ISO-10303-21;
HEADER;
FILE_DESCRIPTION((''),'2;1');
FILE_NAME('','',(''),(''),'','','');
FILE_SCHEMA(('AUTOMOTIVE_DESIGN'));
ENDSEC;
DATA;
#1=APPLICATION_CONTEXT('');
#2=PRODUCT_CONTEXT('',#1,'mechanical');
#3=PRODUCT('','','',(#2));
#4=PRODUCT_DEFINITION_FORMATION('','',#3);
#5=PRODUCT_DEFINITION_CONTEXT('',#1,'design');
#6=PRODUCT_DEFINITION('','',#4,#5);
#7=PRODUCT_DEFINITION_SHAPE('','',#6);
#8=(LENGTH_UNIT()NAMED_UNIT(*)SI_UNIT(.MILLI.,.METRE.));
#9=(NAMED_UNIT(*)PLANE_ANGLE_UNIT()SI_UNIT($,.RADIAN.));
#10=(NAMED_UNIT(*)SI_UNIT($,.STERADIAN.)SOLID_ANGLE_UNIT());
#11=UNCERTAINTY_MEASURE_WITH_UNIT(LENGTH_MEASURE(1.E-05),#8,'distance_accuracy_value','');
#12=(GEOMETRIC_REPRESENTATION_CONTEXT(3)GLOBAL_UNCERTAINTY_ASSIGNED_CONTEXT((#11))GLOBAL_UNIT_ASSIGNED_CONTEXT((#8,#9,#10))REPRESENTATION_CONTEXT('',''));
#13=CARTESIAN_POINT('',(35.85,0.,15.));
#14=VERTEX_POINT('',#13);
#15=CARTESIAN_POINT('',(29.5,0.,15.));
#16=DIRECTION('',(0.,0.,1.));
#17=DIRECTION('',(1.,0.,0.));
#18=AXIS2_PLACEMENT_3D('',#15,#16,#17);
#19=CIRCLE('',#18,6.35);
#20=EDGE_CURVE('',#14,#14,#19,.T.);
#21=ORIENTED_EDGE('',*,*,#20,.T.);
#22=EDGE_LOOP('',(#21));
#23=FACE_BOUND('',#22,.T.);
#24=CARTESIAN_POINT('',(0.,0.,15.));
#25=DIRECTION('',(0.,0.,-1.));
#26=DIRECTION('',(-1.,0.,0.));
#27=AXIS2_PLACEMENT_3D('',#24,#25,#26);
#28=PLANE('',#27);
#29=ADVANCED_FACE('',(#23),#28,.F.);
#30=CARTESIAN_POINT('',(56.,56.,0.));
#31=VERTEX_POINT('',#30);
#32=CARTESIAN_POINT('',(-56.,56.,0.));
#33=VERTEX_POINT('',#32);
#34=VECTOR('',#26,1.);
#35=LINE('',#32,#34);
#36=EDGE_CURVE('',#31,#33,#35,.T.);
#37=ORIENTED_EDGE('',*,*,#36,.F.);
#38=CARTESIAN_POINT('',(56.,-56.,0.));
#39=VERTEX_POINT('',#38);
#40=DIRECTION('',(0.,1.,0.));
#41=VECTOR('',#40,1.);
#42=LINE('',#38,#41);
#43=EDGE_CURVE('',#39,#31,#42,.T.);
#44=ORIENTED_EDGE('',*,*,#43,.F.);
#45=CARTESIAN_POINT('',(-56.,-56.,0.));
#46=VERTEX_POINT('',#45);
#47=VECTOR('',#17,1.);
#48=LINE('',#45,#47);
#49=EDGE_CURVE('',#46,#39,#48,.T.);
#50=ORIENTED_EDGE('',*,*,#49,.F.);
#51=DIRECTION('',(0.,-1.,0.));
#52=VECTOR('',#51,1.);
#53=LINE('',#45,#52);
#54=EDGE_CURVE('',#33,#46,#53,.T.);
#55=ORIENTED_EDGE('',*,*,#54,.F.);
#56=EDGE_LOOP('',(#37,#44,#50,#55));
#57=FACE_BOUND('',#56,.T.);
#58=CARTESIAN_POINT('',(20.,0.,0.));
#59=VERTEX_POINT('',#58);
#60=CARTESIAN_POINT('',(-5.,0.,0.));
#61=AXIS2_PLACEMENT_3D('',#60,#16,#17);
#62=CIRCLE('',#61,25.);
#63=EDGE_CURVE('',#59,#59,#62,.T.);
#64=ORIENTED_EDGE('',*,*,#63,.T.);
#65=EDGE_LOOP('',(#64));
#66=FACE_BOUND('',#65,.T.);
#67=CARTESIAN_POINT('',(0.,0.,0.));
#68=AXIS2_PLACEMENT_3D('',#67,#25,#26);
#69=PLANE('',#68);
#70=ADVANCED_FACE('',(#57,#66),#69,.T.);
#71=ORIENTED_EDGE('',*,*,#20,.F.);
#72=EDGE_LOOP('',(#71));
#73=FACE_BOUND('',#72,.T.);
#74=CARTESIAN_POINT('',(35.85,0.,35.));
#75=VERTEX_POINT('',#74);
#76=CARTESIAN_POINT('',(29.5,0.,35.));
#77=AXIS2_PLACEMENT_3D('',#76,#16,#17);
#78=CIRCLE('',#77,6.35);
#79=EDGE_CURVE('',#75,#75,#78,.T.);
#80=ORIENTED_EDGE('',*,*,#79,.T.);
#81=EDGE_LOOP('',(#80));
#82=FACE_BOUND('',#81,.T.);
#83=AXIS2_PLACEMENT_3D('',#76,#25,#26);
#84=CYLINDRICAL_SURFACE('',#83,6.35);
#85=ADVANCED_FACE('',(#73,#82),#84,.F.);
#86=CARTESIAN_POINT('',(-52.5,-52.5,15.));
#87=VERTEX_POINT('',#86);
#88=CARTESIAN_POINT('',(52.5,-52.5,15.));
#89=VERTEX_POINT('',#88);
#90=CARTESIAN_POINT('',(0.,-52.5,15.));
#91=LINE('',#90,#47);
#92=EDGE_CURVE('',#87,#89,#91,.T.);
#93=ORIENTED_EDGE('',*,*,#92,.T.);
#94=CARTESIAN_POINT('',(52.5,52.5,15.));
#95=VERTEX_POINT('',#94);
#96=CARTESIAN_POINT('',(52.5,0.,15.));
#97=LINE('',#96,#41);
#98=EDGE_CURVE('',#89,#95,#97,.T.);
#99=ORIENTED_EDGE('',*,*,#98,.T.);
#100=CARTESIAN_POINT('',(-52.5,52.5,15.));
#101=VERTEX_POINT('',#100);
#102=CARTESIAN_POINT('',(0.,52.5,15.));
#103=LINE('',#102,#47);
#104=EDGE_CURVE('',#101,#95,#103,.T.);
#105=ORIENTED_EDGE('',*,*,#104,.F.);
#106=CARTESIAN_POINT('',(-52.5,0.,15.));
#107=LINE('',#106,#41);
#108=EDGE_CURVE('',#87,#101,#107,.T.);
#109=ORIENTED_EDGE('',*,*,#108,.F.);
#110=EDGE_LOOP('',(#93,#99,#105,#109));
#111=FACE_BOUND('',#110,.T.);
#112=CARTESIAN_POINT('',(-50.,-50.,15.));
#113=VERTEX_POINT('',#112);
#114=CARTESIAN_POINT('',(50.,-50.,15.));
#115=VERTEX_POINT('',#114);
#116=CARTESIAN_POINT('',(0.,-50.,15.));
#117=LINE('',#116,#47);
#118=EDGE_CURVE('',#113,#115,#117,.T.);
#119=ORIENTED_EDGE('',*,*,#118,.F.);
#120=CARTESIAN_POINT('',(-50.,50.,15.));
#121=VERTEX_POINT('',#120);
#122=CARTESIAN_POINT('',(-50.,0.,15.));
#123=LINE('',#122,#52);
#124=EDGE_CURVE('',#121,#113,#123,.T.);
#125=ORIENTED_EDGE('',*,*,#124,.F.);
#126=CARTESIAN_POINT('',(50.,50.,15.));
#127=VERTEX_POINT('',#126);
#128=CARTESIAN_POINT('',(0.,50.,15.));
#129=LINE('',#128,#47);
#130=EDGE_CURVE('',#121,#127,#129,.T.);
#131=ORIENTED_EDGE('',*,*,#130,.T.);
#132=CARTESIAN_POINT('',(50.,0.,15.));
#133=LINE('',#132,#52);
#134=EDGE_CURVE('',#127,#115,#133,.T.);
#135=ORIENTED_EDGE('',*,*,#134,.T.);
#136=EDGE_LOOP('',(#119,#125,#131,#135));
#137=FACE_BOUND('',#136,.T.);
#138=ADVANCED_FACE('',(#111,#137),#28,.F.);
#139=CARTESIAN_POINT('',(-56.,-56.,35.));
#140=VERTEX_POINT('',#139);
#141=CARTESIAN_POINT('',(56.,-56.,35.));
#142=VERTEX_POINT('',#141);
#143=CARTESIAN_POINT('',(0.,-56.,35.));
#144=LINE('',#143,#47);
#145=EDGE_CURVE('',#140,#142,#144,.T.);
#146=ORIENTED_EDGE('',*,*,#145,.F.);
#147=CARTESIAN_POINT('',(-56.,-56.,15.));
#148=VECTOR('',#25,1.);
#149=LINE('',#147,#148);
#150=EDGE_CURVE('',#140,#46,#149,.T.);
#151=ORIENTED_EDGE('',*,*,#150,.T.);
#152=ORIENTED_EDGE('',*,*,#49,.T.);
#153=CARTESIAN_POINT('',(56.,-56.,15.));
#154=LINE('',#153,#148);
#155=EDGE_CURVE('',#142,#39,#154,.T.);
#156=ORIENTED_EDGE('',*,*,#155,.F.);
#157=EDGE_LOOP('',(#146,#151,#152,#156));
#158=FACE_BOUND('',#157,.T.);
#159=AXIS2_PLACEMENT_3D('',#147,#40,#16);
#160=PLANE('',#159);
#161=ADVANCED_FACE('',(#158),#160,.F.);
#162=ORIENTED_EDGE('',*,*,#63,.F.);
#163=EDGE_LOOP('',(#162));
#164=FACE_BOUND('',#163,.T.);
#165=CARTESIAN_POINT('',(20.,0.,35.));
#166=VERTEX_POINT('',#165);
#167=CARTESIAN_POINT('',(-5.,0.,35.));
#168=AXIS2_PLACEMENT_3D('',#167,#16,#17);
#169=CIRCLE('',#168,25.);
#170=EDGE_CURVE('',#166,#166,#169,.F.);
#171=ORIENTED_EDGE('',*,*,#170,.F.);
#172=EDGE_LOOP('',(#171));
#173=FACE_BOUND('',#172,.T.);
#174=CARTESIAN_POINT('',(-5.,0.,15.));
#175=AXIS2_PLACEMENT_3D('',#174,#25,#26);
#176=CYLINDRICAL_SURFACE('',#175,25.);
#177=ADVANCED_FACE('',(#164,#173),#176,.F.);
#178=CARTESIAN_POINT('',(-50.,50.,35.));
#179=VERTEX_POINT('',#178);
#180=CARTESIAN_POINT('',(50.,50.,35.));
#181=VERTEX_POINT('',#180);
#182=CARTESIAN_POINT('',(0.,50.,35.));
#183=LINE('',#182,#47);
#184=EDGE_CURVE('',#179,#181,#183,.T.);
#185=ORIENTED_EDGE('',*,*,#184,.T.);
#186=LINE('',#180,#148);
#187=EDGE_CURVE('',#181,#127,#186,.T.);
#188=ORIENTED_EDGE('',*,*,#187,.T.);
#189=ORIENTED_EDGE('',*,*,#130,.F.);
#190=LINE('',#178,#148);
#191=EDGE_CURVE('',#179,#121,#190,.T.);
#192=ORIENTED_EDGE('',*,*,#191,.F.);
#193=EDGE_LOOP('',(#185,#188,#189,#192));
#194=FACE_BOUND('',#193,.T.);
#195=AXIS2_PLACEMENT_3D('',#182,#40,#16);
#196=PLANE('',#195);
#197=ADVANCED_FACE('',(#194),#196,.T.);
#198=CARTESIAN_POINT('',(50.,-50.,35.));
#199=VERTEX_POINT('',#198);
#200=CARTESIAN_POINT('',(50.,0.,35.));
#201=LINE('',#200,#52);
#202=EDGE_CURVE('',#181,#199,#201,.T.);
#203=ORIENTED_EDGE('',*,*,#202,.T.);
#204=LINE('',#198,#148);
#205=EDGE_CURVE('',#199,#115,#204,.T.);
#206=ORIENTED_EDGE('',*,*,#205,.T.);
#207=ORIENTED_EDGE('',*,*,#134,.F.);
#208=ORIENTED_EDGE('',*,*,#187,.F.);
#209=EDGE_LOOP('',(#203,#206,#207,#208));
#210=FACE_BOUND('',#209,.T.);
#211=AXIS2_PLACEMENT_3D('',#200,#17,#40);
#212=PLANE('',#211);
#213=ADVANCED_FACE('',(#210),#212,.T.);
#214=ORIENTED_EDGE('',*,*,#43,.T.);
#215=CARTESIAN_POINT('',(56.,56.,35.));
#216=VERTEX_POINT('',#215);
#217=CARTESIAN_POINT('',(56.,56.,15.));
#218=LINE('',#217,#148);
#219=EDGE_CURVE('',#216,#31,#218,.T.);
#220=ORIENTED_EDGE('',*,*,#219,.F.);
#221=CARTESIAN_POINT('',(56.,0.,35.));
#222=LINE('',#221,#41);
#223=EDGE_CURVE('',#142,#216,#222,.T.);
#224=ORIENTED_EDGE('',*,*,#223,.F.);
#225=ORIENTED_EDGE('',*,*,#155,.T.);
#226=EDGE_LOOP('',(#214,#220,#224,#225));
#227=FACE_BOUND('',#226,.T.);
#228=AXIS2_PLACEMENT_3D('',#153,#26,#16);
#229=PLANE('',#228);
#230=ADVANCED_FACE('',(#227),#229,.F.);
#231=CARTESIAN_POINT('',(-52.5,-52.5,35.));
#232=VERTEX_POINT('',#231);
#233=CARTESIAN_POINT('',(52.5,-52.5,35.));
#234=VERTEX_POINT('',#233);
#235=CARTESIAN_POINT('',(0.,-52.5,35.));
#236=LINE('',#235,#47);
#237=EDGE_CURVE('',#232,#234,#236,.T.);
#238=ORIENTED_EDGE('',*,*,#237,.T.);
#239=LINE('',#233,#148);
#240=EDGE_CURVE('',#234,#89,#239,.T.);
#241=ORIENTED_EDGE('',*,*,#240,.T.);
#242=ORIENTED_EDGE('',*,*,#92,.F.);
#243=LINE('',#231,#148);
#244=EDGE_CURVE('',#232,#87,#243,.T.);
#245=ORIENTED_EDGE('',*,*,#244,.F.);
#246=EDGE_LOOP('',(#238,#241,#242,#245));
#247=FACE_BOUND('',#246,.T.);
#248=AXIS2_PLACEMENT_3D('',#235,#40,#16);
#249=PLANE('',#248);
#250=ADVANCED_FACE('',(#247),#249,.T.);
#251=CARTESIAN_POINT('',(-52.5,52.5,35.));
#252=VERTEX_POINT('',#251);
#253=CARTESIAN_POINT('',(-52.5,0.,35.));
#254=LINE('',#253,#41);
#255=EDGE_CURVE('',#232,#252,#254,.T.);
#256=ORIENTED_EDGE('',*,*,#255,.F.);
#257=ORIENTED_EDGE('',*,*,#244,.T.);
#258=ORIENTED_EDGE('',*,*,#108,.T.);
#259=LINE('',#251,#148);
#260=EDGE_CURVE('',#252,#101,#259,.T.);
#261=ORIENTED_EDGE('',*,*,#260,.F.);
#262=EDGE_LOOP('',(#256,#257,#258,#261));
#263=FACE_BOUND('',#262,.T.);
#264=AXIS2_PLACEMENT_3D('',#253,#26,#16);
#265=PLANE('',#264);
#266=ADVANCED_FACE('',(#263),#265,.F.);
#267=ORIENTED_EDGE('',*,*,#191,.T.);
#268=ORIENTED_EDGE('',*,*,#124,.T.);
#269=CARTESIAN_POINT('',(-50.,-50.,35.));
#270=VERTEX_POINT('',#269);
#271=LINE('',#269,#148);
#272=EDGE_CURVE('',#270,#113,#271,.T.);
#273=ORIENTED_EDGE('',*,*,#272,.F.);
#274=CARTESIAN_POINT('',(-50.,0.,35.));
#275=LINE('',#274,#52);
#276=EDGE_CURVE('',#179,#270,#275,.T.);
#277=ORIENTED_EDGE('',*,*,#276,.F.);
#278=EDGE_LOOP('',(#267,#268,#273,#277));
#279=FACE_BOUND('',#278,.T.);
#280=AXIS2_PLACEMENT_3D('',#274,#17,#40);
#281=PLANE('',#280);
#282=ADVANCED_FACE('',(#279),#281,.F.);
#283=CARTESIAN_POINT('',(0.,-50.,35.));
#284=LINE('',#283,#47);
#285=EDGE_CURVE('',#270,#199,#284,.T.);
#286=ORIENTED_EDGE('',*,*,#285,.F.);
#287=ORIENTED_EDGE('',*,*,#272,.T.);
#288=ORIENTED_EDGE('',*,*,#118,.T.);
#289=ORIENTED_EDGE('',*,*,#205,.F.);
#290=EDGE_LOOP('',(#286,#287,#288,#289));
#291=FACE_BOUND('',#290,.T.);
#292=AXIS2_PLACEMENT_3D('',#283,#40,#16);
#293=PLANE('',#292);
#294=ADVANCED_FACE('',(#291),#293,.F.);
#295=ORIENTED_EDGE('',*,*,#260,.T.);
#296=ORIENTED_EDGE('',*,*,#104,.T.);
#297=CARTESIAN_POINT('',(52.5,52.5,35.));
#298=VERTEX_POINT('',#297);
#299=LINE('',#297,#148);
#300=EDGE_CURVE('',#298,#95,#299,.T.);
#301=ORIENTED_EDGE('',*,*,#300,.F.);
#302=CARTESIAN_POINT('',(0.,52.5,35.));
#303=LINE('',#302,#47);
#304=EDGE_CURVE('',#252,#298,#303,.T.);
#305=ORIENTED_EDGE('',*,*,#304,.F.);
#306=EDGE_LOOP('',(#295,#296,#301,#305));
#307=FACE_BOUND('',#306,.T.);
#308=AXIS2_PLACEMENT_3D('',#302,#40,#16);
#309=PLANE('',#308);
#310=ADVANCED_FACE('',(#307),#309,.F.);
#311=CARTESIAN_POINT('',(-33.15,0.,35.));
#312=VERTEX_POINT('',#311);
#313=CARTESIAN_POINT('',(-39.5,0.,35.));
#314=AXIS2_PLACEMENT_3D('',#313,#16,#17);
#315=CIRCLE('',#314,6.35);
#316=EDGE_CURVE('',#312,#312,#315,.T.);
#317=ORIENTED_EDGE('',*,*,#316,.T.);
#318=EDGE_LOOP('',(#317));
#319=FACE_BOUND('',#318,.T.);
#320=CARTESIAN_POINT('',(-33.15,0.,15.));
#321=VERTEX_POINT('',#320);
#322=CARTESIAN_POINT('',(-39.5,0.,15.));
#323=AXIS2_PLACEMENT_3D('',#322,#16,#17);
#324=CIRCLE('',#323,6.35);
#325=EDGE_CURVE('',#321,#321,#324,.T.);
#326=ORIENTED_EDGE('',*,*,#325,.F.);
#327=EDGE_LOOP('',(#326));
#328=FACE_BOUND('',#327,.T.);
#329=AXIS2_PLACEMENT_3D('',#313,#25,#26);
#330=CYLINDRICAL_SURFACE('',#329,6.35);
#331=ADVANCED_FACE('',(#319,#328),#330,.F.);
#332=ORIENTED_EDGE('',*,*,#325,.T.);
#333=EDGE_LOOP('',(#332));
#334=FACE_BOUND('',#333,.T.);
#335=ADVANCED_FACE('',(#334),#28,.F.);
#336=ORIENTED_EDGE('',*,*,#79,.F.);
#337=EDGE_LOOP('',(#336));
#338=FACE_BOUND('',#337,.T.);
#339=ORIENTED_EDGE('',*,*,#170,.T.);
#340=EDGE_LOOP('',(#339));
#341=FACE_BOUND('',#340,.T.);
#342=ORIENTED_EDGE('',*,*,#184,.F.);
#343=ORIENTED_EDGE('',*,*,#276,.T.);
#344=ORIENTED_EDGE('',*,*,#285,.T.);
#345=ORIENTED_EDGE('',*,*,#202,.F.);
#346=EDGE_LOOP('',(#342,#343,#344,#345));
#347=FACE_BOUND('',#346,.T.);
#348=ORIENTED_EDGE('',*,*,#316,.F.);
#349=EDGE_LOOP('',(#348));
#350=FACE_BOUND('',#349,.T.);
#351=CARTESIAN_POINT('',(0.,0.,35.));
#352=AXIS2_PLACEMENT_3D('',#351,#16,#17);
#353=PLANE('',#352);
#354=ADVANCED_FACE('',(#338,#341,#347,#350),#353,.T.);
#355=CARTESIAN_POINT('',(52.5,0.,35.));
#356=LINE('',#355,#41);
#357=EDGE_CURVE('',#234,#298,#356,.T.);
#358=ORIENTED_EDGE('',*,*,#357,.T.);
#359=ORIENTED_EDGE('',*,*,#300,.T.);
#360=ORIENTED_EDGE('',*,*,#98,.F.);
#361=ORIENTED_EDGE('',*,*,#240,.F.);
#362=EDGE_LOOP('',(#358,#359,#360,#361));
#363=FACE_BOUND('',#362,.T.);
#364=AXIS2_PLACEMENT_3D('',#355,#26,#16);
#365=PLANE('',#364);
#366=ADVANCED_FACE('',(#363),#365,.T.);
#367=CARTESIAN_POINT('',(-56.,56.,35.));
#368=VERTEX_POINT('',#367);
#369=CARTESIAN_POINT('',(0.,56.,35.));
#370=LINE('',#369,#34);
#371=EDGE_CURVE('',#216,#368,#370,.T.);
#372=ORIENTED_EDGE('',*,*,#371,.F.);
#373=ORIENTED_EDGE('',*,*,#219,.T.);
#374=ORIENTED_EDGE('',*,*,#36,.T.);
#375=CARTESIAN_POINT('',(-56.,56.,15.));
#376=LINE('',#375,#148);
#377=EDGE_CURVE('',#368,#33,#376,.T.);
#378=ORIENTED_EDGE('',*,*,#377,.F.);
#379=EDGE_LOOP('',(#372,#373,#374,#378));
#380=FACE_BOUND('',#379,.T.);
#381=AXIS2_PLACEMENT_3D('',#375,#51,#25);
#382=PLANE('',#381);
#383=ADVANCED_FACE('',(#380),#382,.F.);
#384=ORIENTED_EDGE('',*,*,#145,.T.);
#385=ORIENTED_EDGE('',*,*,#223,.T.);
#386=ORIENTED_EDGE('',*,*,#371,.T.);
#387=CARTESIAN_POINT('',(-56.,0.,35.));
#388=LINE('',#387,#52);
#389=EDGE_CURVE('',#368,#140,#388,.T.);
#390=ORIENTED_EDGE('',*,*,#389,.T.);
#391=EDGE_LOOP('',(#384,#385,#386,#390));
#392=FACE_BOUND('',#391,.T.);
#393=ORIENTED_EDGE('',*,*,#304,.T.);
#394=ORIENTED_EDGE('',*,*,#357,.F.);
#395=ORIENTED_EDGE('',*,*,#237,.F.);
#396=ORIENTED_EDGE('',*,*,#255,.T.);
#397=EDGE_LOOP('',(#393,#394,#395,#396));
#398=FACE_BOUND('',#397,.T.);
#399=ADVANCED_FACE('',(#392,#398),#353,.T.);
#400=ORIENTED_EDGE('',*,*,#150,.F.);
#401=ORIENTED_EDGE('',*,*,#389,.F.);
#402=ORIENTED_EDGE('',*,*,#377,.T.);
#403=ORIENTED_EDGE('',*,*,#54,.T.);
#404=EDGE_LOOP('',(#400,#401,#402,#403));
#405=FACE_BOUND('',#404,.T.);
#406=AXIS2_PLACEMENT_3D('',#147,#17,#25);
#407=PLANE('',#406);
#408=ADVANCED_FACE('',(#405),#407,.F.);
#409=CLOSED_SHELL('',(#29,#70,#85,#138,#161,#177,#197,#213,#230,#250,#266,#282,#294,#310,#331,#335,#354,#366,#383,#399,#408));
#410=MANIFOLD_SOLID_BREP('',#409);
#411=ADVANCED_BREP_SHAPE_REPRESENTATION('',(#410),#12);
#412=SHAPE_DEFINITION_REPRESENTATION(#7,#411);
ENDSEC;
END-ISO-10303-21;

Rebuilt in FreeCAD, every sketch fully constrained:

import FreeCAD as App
import Part
import Sketcher

V = App.Vector


def add_polygon(sketch, points):
    """Adds a closed chain of lines whose ends are joined by coincident constraints."""
    first, n = sketch.GeometryCount, len(points)
    for a, b in zip(points, points[1:] + points[:1]):
        sketch.addGeometry(Part.LineSegment(App.Vector(*a, 0), App.Vector(*b, 0)), False)
    for i in range(n):
        sketch.addConstraint(Sketcher.Constraint("Coincident", first + i, 2, first + (i + 1) % n, 1))

doc = App.newDocument("Part")
body = doc.addObject("PartDesign::Body", "Body")

# Sketch on XY plane
sketch1 = body.newObject("Sketcher::SketchObject", "Sketch")
sketch1.AttachmentSupport = (doc.getObject("XY_Plane"), [""])
sketch1.MapMode = "FlatFace"
add_polygon(sketch1, [(-56, 56), (-56, -56), (56, -56), (56, 56)])  # lines 0-3
sketch1.addGeometry(Part.Circle(V(-5, 0, 0), V(0, 0, 1), 25), False)  # 4
sketch1.addConstraint(Sketcher.Constraint("Vertical", 0))
sketch1.addConstraint(Sketcher.Constraint("Horizontal", 1))
sketch1.addConstraint(Sketcher.Constraint("Vertical", 2))
sketch1.addConstraint(Sketcher.Constraint("Horizontal", 3))
sketch1.addConstraint(Sketcher.Constraint("Symmetric", 0, 2, 2, 2, -1, 1))
sketch1.addConstraint(Sketcher.Constraint("PointOnObject", 4, 3, -1))
sketch1.addConstraint(Sketcher.Constraint("Equal", 3, 0))
sketch1.addConstraint(Sketcher.Constraint("Diameter", 4, 50.0))
sketch1.addConstraint(Sketcher.Constraint("DistanceX", 1, 1, 1, 2, 112.0))
sketch1.addConstraint(Sketcher.Constraint("DistanceX", 4, 3, -1, 1, 5.0))
pad1 = body.newObject("PartDesign::Pad", "Pad")
pad1.Profile = sketch1
pad1.Length = 15

# Sketch on XY plane
sketch2 = body.newObject("Sketcher::SketchObject", "Sketch001")
sketch2.AttachmentSupport = (doc.getObject("XY_Plane"), [""])
sketch2.MapMode = "FlatFace"
sketch2.AttachmentOffset = App.Placement(V(0, 0, 15), App.Rotation())
add_polygon(sketch2, [(-56, 56), (-56, -56), (56, -56), (56, 56)])  # lines 0-3
add_polygon(sketch2, [(52.5, -52.5), (-52.5, -52.5), (-52.5, 52.5), (52.5, 52.5)])  # lines 4-7
add_polygon(sketch2, [(-50, 50), (-50, -50), (50, -50), (50, 50)])  # lines 8-11
sketch2.addGeometry(Part.Circle(V(-39.5, 0, 0), V(0, 0, 1), 6.35), False)  # 12
sketch2.addGeometry(Part.Circle(V(-5, 0, 0), V(0, 0, 1), 25), False)  # 13
sketch2.addGeometry(Part.Circle(V(29.5, 0, 0), V(0, 0, 1), 6.35), False)  # 14
sketch2.addConstraint(Sketcher.Constraint("Vertical", 0))
sketch2.addConstraint(Sketcher.Constraint("Horizontal", 1))
sketch2.addConstraint(Sketcher.Constraint("Vertical", 2))
sketch2.addConstraint(Sketcher.Constraint("Horizontal", 3))
sketch2.addConstraint(Sketcher.Constraint("Horizontal", 4))
sketch2.addConstraint(Sketcher.Constraint("Vertical", 5))
sketch2.addConstraint(Sketcher.Constraint("Horizontal", 6))
sketch2.addConstraint(Sketcher.Constraint("Vertical", 7))
sketch2.addConstraint(Sketcher.Constraint("Vertical", 8))
sketch2.addConstraint(Sketcher.Constraint("Horizontal", 9))
sketch2.addConstraint(Sketcher.Constraint("Vertical", 10))
sketch2.addConstraint(Sketcher.Constraint("Horizontal", 11))
sketch2.addConstraint(Sketcher.Constraint("Equal", 12, 14))
sketch2.addConstraint(Sketcher.Constraint("Symmetric", 0, 2, 2, 2, -1, 1))
sketch2.addConstraint(Sketcher.Constraint("Symmetric", 4, 2, 6, 2, -1, 1))
sketch2.addConstraint(Sketcher.Constraint("Symmetric", 8, 2, 10, 2, -1, 1))
sketch2.addConstraint(Sketcher.Constraint("PointOnObject", 12, 3, -1))
sketch2.addConstraint(Sketcher.Constraint("PointOnObject", 13, 3, -1))
sketch2.addConstraint(Sketcher.Constraint("PointOnObject", 14, 3, -1))
sketch2.addConstraint(Sketcher.Constraint("Equal", 3, 0))
sketch2.addConstraint(Sketcher.Constraint("Equal", 6, 5))
sketch2.addConstraint(Sketcher.Constraint("Equal", 11, 8))
sketch2.addConstraint(Sketcher.Constraint("Diameter", 13, 50.0))
sketch2.addConstraint(Sketcher.Constraint("Diameter", 12, 12.7))
sketch2.addConstraint(Sketcher.Constraint("DistanceX", 1, 1, 1, 2, 112.0))
sketch2.addConstraint(Sketcher.Constraint("DistanceX", 4, 2, 4, 1, 105.0))
sketch2.addConstraint(Sketcher.Constraint("DistanceX", 9, 1, 9, 2, 100.0))
sketch2.addConstraint(Sketcher.Constraint("DistanceX", 13, 3, -1, 1, 5.0))
sketch2.addConstraint(Sketcher.Constraint("DistanceX", 12, 3, 14, 3, 69.0))
sketch2.addConstraint(Sketcher.Constraint("DistanceX", 4, 2, 12, 3, 13.0))
pad2 = body.newObject("PartDesign::Pad", "Pad001")
pad2.Profile = sketch2
pad2.Length = 20

doc.recompute()
